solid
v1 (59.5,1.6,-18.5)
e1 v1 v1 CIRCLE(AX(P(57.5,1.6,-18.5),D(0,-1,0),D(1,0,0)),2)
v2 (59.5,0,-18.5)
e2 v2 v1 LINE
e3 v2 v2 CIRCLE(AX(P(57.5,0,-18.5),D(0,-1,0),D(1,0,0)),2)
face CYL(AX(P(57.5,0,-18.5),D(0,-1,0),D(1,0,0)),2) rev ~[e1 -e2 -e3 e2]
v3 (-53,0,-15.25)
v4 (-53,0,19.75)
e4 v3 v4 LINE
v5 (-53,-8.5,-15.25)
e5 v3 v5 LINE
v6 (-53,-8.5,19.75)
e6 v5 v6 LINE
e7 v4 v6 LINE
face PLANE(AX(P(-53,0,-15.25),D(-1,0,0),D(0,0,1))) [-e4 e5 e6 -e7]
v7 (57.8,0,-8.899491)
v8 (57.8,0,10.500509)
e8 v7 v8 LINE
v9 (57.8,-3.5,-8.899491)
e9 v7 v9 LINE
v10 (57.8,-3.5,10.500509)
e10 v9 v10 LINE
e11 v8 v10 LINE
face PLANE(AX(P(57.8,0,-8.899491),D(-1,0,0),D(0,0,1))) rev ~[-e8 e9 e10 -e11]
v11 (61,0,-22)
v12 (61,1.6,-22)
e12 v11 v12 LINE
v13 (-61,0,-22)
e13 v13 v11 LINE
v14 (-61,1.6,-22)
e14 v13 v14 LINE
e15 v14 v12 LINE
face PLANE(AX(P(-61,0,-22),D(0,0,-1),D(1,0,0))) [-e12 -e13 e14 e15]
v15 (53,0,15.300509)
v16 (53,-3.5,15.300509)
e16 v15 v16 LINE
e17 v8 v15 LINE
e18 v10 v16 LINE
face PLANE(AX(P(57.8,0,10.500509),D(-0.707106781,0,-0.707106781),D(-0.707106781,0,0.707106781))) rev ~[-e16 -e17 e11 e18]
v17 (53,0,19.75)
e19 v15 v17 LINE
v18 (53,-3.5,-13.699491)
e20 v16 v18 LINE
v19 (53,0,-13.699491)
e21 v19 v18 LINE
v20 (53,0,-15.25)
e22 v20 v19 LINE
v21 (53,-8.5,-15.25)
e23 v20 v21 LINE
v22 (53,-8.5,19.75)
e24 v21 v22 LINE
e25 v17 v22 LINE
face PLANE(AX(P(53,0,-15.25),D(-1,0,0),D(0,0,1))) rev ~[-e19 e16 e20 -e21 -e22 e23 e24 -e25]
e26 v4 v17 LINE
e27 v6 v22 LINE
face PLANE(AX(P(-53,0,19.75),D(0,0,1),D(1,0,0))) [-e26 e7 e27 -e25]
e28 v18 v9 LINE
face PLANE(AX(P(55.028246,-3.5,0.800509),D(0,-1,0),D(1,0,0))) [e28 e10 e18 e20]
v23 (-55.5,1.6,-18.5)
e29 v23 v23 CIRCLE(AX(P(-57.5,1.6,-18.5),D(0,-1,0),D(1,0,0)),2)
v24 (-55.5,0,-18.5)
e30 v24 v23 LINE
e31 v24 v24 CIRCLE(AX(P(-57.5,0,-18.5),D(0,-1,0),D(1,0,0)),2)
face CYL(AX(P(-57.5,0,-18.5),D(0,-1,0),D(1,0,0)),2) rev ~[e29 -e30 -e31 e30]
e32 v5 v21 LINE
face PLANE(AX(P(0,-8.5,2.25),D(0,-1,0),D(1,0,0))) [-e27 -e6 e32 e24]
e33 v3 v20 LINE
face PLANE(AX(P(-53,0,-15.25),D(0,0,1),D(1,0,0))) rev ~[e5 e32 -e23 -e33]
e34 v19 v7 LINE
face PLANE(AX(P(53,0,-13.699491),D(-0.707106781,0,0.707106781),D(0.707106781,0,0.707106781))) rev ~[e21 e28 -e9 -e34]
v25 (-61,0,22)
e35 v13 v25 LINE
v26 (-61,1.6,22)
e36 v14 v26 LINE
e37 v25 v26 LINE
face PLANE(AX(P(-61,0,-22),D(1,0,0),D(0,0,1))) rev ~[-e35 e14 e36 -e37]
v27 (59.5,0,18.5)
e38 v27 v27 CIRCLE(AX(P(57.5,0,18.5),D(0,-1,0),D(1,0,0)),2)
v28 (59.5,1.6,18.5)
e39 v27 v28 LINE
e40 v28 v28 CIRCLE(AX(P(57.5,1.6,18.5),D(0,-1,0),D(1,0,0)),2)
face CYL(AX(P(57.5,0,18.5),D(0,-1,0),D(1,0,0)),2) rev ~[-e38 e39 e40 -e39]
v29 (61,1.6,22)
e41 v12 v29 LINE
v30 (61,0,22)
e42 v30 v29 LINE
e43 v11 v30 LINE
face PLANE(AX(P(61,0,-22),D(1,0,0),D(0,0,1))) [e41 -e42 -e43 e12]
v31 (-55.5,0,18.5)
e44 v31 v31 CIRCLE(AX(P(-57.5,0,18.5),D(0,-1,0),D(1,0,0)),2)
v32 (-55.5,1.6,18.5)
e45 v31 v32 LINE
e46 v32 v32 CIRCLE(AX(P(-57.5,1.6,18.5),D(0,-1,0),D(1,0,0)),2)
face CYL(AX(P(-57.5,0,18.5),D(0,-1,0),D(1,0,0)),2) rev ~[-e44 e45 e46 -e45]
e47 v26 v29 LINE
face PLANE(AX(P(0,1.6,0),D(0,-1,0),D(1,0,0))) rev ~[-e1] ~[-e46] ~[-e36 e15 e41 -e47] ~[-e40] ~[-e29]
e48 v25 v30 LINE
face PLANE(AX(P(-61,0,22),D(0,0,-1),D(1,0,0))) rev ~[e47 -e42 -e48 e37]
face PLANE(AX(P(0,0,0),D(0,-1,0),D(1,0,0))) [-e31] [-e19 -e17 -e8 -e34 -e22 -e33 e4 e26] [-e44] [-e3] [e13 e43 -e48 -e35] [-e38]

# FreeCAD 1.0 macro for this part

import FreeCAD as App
import Part
import Sketcher

V = App.Vector
Q = App.Units.Quantity

doc = App.newDocument("Part")
body = doc.addObject("PartDesign::Body", "Body")

# Sketch on XZ plane
sketch1 = body.newObject("Sketcher::SketchObject", "Sketch")
sketch1.AttachmentSupport = (doc.getObject("XZ_Plane"), [""])
sketch1.MapMode = "FlatFace"
sketch1.addGeometry([
    Part.LineSegment(V(-61, 22, 0), V(-61, -22, 0)),  # 0
    Part.LineSegment(V(-61, -22, 0), V(61, -22, 0)),  # 1
    Part.LineSegment(V(61, -22, 0), V(61, 22, 0)),  # 2
    Part.LineSegment(V(61, 22, 0), V(-61, 22, 0)),  # 3
    Part.Circle(V(-57.5, -18.5, 0), V(0, 0, 1), 2),  # 4
    Part.Circle(V(57.5, -18.5, 0), V(0, 0, 1), 2),  # 5
    Part.Circle(V(-57.5, 18.5, 0), V(0, 0, 1), 2),  # 6
    Part.Circle(V(57.5, 18.5, 0), V(0, 0, 1), 2),  # 7
], False)
sketch1.addConstraint([
    Sketcher.Constraint("Coincident", 0, 2, 1, 1),
    Sketcher.Constraint("Coincident", 1, 2, 2, 1),
    Sketcher.Constraint("Coincident", 2, 2, 3, 1),
    Sketcher.Constraint("Coincident", 3, 2, 0, 1),
    Sketcher.Constraint("Vertical", 0),
    Sketcher.Constraint("Horizontal", 1),
    Sketcher.Constraint("Vertical", 2),
    Sketcher.Constraint("Horizontal", 3),
    Sketcher.Constraint("Equal", 4, 5),
    Sketcher.Constraint("Equal", 5, 6),
    Sketcher.Constraint("Equal", 6, 7),
    Sketcher.Constraint("Symmetric", 5, 3, 6, 3, -1, 1),
    Sketcher.Constraint("Symmetric", 4, 3, 7, 3, -1, 1),
    Sketcher.Constraint("Symmetric", 0, 2, 2, 2, -1, 1),
    Sketcher.Constraint("Symmetric", 4, 3, 5, 3, -2),
    Sketcher.Constraint("Diameter", 4, Q("4 mm")),
    Sketcher.Constraint("DistanceX", 1, 1, 1, 2, Q("122 mm")),
    Sketcher.Constraint("DistanceY", 0, 2, 0, 1, Q("44 mm")),
    Sketcher.Constraint("DistanceX", 4, 3, 5, 3, Q("115 mm")),
    Sketcher.Constraint("DistanceY", 4, 3, 6, 3, Q("37 mm")),
])
pad1 = body.newObject("PartDesign::Pad", "Pad")
pad1.Profile = sketch1
pad1.Length = 1.6
pad1.Reversed = True

# Sketch on XZ plane
sketch2 = body.newObject("Sketcher::SketchObject", "Sketch001")
sketch2.AttachmentSupport = (doc.getObject("XZ_Plane"), [""])
sketch2.MapMode = "FlatFace"
sketch2.addGeometry([
    Part.LineSegment(V(-53, 19.75, 0), V(-53, -15.25, 0)),
    Part.LineSegment(V(-53, -15.25, 0), V(53, -15.25, 0)),
    Part.LineSegment(V(53, -15.25, 0), V(53, 19.75, 0)),
    Part.LineSegment(V(53, 19.75, 0), V(-53, 19.75, 0)),
], False)
sketch2.addConstraint([
    Sketcher.Constraint("Coincident", 0, 2, 1, 1),
    Sketcher.Constraint("Coincident", 1, 2, 2, 1),
    Sketcher.Constraint("Coincident", 2, 2, 3, 1),
    Sketcher.Constraint("Coincident", 3, 2, 0, 1),
    Sketcher.Constraint("Vertical", 0),
    Sketcher.Constraint("Horizontal", 1),
    Sketcher.Constraint("Vertical", 2),
    Sketcher.Constraint("Horizontal", 3),
    Sketcher.Constraint("DistanceX", 1, 1, 1, 2, Q("106 mm")),
    Sketcher.Constraint("DistanceY", 0, 2, 0, 1, Q("35 mm")),
    Sketcher.Constraint("DistanceX", 0, 2, -1, 1, Q("53 mm")),
    Sketcher.Constraint("DistanceY", 0, 2, -1, 1, Q("15.25 mm")),
])
pad2 = body.newObject("PartDesign::Pad", "Pad001")
pad2.Profile = sketch2
pad2.Length = 8.5

# Sketch on XZ plane
sketch3 = body.newObject("Sketcher::SketchObject", "Sketch002")
sketch3.AttachmentSupport = (doc.getObject("XZ_Plane"), [""])
sketch3.MapMode = "FlatFace"
sketch3.addGeometry([
    Part.LineSegment(V(53, 15.300509, 0), V(53, -13.699491, 0)),
    Part.LineSegment(V(53, -13.699491, 0), V(57.8, -8.899491, 0)),
    Part.LineSegment(V(57.8, -8.899491, 0), V(57.8, 10.500509, 0)),
    Part.LineSegment(V(57.8, 10.500509, 0), V(53, 15.300509, 0)),
], False)
sketch3.addConstraint([
    Sketcher.Constraint("Coincident", 0, 2, 1, 1),
    Sketcher.Constraint("Coincident", 1, 2, 2, 1),
    Sketcher.Constraint("Coincident", 2, 2, 3, 1),
    Sketcher.Constraint("Coincident", 3, 2, 0, 1),
    Sketcher.Constraint("Vertical", 0),
    Sketcher.Constraint("Vertical", 2),
    Sketcher.Constraint("Perpendicular", 1, 3),
    Sketcher.Constraint("Equal", 1, 3),
    Sketcher.Constraint("DistanceY", 0, 2, 0, 1, Q("29 mm")),
    Sketcher.Constraint("DistanceY", 2, 1, 2, 2, Q("19.4 mm")),
    Sketcher.Constraint("DistanceX", -1, 1, 0, 2, Q("53 mm")),
    Sketcher.Constraint("DistanceY", 0, 2, -1, 1, Q("13.699491 mm")),
])
pad3 = body.newObject("PartDesign::Pad", "Pad002")
pad3.Profile = sketch3
pad3.Length = 3.5

doc.recompute()
